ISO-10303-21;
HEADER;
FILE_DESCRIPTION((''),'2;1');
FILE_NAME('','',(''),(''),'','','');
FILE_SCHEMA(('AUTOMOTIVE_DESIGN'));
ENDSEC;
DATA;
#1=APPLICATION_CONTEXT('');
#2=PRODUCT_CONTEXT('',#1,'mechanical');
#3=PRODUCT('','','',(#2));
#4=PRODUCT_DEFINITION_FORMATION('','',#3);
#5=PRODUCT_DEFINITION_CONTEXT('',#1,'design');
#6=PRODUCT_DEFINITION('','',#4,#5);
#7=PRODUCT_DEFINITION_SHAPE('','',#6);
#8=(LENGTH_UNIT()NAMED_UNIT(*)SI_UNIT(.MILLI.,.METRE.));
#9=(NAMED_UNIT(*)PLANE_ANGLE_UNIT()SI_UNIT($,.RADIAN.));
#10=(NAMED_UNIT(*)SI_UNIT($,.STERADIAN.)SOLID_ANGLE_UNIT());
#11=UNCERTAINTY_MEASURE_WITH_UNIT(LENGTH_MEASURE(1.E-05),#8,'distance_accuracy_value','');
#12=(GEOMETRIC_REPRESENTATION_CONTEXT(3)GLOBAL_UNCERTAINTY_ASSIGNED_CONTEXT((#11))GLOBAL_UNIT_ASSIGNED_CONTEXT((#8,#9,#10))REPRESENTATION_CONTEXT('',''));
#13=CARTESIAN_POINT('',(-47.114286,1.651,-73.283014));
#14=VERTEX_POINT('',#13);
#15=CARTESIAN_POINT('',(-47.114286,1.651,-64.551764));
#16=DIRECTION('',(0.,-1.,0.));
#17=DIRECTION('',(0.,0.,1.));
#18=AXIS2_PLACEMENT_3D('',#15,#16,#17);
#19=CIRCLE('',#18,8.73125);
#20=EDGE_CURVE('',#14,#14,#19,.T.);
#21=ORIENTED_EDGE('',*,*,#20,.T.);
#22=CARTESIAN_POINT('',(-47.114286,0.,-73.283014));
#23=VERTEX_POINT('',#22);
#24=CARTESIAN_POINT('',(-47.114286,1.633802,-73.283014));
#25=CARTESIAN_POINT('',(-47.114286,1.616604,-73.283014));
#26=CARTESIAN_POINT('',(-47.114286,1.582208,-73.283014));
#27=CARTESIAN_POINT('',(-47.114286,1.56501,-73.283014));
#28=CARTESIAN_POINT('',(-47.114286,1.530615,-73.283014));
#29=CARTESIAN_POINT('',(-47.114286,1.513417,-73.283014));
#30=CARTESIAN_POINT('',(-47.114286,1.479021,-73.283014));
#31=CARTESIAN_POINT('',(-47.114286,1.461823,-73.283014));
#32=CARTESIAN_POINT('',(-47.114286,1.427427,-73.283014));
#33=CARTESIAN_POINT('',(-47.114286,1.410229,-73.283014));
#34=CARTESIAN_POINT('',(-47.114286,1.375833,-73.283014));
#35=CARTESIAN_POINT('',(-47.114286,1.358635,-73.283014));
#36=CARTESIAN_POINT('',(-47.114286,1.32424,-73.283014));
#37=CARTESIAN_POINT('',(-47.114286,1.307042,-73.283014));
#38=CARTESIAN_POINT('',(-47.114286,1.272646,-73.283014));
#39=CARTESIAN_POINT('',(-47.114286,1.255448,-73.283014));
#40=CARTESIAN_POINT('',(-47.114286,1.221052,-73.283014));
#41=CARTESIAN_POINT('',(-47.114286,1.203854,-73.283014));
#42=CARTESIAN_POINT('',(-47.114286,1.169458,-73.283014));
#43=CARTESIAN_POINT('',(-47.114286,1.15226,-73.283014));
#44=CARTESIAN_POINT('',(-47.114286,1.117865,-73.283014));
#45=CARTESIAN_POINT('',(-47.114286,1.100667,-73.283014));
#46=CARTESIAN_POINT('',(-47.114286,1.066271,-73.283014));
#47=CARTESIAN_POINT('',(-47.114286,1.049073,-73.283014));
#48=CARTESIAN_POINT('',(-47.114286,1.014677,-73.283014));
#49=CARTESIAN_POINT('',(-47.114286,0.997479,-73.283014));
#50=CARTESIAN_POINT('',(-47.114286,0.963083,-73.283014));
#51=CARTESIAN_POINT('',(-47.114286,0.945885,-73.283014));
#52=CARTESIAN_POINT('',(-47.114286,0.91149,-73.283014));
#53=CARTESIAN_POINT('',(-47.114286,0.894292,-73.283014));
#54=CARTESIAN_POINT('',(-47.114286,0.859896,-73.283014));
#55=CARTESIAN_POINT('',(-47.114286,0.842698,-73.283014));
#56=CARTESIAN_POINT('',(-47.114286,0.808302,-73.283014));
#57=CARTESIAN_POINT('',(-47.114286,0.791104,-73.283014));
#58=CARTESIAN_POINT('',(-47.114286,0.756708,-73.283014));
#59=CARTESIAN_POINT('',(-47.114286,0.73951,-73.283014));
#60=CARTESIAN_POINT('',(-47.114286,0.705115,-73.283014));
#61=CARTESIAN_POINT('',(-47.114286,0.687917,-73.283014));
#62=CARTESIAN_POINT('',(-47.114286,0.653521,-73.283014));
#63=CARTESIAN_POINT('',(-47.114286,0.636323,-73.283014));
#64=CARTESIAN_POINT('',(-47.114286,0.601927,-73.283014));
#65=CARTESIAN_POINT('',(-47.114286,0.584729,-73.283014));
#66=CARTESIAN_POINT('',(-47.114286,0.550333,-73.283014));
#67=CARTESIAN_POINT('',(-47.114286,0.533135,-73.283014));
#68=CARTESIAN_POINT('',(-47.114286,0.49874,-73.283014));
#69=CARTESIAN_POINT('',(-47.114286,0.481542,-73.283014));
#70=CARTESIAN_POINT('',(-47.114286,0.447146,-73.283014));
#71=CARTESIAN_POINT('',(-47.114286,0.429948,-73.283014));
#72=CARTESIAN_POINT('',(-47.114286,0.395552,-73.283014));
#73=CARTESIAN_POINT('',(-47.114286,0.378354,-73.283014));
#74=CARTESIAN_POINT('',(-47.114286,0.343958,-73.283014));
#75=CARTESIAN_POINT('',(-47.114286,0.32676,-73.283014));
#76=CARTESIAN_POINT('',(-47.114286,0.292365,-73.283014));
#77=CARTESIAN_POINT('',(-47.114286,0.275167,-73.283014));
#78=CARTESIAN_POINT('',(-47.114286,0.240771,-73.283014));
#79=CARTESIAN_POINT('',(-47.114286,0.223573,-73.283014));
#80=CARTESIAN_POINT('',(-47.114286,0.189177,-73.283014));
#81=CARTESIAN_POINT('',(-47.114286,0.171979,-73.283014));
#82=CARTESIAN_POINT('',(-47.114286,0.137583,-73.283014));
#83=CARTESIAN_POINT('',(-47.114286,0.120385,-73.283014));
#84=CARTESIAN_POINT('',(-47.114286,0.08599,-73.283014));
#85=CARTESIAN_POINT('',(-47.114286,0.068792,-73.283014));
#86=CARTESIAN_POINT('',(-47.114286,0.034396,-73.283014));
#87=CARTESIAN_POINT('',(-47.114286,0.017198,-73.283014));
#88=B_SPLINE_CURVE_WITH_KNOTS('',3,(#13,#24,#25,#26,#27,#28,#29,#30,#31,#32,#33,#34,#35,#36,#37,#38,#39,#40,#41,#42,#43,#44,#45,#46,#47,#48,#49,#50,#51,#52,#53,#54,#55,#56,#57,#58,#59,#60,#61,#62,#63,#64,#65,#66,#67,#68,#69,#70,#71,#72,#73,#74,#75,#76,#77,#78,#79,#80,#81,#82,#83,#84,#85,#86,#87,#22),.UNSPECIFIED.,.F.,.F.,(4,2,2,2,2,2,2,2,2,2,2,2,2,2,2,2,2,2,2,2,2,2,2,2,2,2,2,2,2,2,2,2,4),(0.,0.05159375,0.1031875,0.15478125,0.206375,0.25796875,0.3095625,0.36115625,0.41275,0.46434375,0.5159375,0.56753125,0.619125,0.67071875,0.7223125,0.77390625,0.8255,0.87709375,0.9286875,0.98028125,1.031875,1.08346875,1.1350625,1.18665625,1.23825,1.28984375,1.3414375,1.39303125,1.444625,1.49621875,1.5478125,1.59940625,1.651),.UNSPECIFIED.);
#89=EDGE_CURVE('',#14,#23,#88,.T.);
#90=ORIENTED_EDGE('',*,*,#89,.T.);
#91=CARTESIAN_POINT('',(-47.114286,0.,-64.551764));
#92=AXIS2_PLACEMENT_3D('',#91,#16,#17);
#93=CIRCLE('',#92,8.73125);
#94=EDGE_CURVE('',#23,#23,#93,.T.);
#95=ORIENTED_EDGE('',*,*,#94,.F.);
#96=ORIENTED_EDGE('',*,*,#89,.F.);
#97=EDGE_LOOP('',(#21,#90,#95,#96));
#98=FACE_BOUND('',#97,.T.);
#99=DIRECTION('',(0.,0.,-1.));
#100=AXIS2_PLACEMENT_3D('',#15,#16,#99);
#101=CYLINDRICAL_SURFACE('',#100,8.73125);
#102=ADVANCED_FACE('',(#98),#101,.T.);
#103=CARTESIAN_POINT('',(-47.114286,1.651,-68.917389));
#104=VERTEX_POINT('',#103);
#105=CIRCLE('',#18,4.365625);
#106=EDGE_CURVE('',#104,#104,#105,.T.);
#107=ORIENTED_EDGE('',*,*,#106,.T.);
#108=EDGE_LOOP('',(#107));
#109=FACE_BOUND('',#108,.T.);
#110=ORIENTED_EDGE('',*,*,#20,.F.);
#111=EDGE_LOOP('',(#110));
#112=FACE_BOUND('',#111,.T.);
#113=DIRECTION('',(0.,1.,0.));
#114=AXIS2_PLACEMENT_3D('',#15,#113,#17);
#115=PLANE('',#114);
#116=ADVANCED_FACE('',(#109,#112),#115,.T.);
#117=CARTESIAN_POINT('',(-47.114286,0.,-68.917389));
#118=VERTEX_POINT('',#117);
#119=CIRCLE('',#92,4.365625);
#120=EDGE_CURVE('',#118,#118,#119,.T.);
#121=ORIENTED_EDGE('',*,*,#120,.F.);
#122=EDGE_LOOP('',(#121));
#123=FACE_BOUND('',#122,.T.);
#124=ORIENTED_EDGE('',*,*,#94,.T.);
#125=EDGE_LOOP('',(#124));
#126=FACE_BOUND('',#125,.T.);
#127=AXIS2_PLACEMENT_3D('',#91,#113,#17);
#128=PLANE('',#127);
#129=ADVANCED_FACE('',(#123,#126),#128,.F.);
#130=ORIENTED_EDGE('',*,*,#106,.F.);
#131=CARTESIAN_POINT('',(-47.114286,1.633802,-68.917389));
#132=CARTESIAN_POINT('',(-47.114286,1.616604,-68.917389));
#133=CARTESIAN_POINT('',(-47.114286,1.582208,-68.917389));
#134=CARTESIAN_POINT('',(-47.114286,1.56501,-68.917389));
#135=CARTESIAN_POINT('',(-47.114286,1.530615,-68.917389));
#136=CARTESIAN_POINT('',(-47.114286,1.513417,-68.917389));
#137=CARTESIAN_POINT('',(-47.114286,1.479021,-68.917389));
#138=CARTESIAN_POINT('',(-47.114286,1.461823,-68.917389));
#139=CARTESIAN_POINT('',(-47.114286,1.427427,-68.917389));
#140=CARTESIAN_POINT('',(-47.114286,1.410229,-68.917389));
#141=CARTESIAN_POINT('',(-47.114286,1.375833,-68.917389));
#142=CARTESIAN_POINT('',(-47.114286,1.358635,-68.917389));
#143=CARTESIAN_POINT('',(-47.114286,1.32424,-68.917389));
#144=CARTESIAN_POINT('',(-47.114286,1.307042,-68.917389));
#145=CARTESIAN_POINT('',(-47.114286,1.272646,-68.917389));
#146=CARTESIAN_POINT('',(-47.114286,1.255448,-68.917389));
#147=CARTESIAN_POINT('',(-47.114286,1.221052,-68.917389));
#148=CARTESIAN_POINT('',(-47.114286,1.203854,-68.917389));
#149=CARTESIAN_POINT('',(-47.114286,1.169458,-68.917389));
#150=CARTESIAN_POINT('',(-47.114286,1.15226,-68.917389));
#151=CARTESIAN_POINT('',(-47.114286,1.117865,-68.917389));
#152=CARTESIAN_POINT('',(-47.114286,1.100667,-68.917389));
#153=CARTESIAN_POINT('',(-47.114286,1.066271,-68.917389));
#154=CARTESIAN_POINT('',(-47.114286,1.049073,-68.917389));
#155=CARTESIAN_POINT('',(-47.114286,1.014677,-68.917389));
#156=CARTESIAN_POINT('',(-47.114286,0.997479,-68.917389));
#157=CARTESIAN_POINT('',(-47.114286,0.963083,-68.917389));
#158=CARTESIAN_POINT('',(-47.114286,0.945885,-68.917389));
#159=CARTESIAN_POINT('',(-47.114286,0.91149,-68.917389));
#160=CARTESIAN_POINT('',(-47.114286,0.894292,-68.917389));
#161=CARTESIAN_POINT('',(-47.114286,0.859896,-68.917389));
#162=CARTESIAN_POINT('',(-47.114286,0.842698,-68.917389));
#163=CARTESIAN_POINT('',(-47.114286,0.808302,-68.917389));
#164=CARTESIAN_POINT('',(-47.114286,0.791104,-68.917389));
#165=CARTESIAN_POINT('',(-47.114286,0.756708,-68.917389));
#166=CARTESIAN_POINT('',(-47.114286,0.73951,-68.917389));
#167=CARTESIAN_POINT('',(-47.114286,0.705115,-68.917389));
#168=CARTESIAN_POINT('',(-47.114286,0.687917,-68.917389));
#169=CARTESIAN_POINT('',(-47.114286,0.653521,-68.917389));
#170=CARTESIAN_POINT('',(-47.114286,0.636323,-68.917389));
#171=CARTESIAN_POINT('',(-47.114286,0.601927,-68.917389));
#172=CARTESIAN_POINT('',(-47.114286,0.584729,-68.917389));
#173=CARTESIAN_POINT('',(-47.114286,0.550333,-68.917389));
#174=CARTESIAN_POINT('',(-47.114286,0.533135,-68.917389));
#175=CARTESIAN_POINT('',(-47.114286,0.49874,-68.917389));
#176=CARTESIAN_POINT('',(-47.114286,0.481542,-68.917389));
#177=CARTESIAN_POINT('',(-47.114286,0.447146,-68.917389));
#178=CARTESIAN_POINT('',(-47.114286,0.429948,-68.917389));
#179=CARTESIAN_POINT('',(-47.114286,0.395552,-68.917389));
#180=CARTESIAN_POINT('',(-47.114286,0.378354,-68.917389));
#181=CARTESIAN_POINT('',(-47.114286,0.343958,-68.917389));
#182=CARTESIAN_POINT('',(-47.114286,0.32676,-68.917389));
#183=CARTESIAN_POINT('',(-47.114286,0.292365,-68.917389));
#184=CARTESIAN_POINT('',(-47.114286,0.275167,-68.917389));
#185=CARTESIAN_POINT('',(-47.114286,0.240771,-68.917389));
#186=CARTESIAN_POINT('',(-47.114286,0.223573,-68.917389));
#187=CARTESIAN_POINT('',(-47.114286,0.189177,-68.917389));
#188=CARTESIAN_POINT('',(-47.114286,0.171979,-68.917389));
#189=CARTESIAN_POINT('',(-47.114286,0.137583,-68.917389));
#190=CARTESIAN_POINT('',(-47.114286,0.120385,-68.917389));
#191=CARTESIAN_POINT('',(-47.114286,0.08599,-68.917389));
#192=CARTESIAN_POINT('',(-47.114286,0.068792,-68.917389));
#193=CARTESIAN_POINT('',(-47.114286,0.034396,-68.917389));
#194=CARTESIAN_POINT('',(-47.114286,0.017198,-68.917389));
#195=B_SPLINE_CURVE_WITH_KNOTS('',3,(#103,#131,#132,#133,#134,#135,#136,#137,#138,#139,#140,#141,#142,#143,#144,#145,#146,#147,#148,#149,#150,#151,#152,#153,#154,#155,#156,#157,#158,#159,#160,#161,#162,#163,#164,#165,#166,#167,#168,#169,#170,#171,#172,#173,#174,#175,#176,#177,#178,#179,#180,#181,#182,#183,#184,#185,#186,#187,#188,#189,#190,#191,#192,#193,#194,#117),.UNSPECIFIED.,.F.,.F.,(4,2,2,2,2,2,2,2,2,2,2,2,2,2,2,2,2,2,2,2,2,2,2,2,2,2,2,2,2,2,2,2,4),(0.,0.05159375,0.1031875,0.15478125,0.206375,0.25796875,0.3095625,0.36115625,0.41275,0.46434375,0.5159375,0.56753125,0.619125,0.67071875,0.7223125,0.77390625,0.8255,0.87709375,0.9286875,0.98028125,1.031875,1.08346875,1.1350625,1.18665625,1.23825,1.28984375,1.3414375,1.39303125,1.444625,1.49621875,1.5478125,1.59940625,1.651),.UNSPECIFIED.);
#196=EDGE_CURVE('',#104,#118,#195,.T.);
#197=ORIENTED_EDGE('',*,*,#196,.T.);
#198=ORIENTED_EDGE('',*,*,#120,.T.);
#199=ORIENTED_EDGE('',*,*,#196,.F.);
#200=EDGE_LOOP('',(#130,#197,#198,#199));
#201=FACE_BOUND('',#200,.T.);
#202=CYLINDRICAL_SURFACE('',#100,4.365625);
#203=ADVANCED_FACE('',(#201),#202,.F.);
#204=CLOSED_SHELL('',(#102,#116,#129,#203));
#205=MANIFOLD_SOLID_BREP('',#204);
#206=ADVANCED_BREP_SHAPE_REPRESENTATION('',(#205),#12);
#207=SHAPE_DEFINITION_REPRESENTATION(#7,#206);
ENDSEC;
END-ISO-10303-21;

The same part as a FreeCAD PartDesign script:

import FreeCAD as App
import Part
import Sketcher
Q = App.Units.Quantity

doc = App.newDocument("Part")
body = doc.addObject("PartDesign::Body", "Body")

# Sketch on XZ plane
sketch1 = doc.addObject("Sketcher::SketchObject", "Sketch")
body.addObject(sketch1)
sketch1.AttachmentSupport = (doc.XZ_Plane, [""])
sketch1.MapMode = "FlatFace"
sketch1.addGeometry([
    Part.Circle(App.Vector(-47.114286, -64.551764, 0), App.Vector(0, 0, 1), 8.73125),
    Part.Circle(App.Vector(-47.114286, -64.551764, 0), App.Vector(0, 0, 1), 4.365625),
], False)
sketch1.addConstraint([
    Sketcher.Constraint("Coincident", 1, 3, 0, 3),
    Sketcher.Constraint("Diameter", 0, Q("0.6875 in")),
    Sketcher.Constraint("Diameter", 1, Q("0.34375 in")),
    Sketcher.Constraint("DistanceX", 0, 3, -1, 1, 47.114286),
    Sketcher.Constraint("DistanceY", 0, 3, -1, 1, 64.551764),
])
pad1 = doc.addObject("PartDesign::Pad", "Pad")
body.addObject(pad1)
pad1.Profile = sketch1
pad1.Length = Q("0.065 in")
pad1.Reversed = True

doc.recompute()
